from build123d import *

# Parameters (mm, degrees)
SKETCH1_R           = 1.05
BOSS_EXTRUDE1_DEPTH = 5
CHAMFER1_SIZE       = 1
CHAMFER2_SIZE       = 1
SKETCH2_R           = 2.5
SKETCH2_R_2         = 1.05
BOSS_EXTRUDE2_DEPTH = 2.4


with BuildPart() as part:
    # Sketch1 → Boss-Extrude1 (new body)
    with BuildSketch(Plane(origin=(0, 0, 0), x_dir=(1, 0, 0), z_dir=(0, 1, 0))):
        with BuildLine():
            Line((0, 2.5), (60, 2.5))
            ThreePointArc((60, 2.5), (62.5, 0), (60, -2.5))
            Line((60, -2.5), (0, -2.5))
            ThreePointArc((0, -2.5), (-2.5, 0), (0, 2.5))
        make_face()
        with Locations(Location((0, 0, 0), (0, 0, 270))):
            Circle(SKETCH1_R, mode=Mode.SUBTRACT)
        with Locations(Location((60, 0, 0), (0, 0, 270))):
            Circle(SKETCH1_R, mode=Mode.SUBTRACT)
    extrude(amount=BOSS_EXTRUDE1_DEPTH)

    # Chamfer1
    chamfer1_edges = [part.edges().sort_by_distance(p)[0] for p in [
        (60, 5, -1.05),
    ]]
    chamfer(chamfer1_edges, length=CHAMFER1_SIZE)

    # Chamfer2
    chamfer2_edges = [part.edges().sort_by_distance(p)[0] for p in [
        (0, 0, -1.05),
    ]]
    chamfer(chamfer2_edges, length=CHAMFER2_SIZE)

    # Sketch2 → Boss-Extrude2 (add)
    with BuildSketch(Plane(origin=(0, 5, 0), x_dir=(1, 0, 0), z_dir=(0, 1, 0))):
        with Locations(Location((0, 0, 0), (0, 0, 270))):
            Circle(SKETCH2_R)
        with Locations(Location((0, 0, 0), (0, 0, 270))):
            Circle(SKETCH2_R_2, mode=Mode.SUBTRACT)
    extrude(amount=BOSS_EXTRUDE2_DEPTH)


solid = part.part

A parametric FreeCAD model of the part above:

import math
import FreeCAD as App
import Part
import Sketcher
from FreeCAD import Vector
Q = App.Units.Quantity


def edges_at(feature, points):
    """Names of the edges that pass closest to the given points."""
    edges = feature.Shape.Edges
    near = lambda p: min(range(len(edges)), key=lambda i: edges[i].distToShape(Part.Vertex(*p))[0])
    return sorted({f"Edge{near(p) + 1}" for p in points})

doc = App.newDocument("Part")
body = doc.addObject("PartDesign::Body", "Body")

# Sketch on XZ plane
sketch1 = body.newObject("Sketcher::SketchObject", "Sketch")
sketch1.AttachmentSupport = (doc.getObject("XZ_Plane"), [""])
sketch1.MapMode = "FlatFace"
sketch1.addGeometry(Part.LineSegment(Vector(60, -2.5, 0), Vector(0, -2.5, 0)), False)
sketch1.addGeometry(Part.ArcOfCircle(Part.Circle(Vector(0, 0, 0), Vector(0, 0, 1), 2.5), math.radians(90), math.radians(270)), False)
sketch1.addGeometry(Part.LineSegment(Vector(0, 2.5, 0), Vector(60, 2.5, 0)), False)
sketch1.addGeometry(Part.ArcOfCircle(Part.Circle(Vector(60, 0, 0), Vector(0, 0, 1), 2.5), math.radians(-90), math.radians(90)), False)
sketch1.addGeometry(Part.Circle(Vector(60, 0, 0), Vector(0, 0, 1), 1.1), False)
sketch1.addGeometry(Part.Circle(Vector(0, 0, 0), Vector(0, 0, 1), 1.1), False)
sketch1.addConstraint(Sketcher.Constraint("Tangent", 0, 2, 1, 2))
sketch1.addConstraint(Sketcher.Constraint("Tangent", 1, 1, 2, 1))
sketch1.addConstraint(Sketcher.Constraint("Tangent", 2, 2, 3, 2))
sketch1.addConstraint(Sketcher.Constraint("Tangent", 3, 1, 0, 1))
sketch1.addConstraint(Sketcher.Constraint("Horizontal", 0))
sketch1.addConstraint(Sketcher.Constraint("Horizontal", 2))
sketch1.addConstraint(Sketcher.Constraint("Coincident", 1, 3, -1, 1))
sketch1.addConstraint(Sketcher.Constraint("Coincident", 5, 3, -1, 1))
sketch1.addConstraint(Sketcher.Constraint("Coincident", 4, 3, 3, 3))
sketch1.addConstraint(Sketcher.Constraint("Equal", 4, 5))
sketch1.addConstraint(Sketcher.Constraint("Diameter", 4, Q("2.1 mm")))
sketch1.addConstraint(Sketcher.Constraint("Radius", 1, Q("2.5 mm")))
sketch1.addConstraint(Sketcher.Constraint("DistanceX", 0, 2, 0, 1, Q("60 mm")))
pad1 = body.newObject("PartDesign::Pad", "Pad")
pad1.Profile = sketch1
pad1.Length = 5
pad1.Reversed = True
doc.recompute()

chamfer = body.newObject("PartDesign::Chamfer", "Chamfer")
chamfer.Base = (pad1, edges_at(pad1, [(60, 5, -1.05)]))
chamfer.Size = 1
doc.recompute()

chamfer2 = body.newObject("PartDesign::Chamfer", "Chamfer001")
chamfer2.Base = (chamfer, edges_at(chamfer, [(0, 0, -1.05)]))
chamfer2.Size = 1

# Sketch on XZ plane
sketch2 = body.newObject("Sketcher::SketchObject", "Sketch001")
sketch2.AttachmentSupport = (doc.getObject("XZ_Plane"), [""])
sketch2.MapMode = "FlatFace"
sketch2.AttachmentOffset = App.Placement(Vector(0, 0, -5), App.Rotation())
sketch2.addGeometry(Part.Circle(Vector(0, 0, 0), Vector(0, 0, 1), 2.5), False)
sketch2.addGeometry(Part.Circle(Vector(0, 0, 0), Vector(0, 0, 1), 1.1), False)
sketch2.addConstraint(Sketcher.Constraint("Coincident", 0, 3, -1, 1))
sketch2.addConstraint(Sketcher.Constraint("Coincident", 1, 3, -1, 1))
sketch2.addConstraint(Sketcher.Constraint("Diameter", 0, Q("5 mm")))
sketch2.addConstraint(Sketcher.Constraint("Diameter", 1, Q("2.1 mm")))
pad2 = body.newObject("PartDesign::Pad", "Pad001")
pad2.Profile = sketch2
pad2.Length = 2.4
pad2.Reversed = True

doc.recompute()
